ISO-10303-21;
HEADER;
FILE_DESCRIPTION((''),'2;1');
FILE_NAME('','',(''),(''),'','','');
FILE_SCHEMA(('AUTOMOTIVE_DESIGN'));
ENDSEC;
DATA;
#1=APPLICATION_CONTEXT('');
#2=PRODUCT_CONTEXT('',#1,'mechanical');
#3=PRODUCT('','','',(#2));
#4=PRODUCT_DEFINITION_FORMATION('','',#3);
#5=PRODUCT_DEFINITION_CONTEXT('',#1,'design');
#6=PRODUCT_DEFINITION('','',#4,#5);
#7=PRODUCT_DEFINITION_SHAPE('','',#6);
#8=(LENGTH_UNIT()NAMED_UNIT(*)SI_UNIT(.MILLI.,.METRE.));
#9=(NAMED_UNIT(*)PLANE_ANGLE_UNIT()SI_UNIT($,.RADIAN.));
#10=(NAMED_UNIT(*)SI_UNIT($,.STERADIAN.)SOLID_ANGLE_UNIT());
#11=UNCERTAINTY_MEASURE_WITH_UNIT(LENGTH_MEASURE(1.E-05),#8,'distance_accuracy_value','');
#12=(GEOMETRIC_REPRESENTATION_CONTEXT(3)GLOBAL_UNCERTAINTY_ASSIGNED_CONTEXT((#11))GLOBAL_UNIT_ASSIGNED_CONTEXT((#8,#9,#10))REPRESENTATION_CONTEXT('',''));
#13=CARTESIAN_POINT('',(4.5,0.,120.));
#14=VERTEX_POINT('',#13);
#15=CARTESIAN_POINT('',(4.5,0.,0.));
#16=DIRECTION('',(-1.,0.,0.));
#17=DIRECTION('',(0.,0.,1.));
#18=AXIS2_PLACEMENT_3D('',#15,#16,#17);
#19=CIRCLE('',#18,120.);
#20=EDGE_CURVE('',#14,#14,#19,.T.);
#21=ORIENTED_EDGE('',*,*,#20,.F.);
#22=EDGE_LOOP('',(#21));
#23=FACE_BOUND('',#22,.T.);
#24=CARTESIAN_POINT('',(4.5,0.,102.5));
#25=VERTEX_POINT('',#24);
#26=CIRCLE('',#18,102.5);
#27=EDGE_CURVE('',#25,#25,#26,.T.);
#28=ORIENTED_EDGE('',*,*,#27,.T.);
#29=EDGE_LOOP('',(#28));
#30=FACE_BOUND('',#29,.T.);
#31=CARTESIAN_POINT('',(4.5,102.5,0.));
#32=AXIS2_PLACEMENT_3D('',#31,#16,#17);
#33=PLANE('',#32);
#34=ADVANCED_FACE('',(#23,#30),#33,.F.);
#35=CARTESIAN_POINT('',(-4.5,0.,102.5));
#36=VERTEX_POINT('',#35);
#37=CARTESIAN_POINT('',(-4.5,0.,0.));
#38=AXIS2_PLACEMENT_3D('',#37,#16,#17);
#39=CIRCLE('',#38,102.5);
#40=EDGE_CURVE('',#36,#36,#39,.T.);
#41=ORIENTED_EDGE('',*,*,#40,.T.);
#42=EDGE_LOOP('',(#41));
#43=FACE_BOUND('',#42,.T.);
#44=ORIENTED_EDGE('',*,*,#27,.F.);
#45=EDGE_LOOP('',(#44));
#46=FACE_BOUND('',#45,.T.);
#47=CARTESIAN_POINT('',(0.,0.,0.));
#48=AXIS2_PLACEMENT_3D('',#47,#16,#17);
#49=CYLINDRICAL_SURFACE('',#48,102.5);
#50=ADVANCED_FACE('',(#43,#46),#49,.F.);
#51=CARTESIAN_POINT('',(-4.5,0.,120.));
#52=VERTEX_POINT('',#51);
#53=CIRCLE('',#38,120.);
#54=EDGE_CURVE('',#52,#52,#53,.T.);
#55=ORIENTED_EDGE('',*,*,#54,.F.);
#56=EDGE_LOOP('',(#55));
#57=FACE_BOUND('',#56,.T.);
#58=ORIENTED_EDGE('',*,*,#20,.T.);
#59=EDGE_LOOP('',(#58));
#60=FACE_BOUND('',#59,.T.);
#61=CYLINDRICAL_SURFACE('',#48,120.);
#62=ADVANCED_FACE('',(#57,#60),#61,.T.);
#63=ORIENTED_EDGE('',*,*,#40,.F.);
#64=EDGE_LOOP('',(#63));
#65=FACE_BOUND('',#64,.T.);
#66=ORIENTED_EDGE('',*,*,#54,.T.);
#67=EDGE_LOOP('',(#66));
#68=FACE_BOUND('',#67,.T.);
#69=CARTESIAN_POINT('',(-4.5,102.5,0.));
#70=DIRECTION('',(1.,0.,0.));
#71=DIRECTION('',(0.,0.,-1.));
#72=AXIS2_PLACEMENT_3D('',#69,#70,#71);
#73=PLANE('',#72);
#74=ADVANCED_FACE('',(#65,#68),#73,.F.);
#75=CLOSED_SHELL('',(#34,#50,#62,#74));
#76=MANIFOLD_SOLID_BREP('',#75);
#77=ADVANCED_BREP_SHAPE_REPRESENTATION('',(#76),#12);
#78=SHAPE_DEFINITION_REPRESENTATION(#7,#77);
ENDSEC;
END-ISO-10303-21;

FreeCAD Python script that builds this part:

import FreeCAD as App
import Part
import Sketcher
from FreeCAD import Vector
Q = App.Units.Quantity

doc = App.newDocument("Part")
body = doc.addObject("PartDesign::Body", "Body")

sketch1 = body.newObject("Sketcher::SketchObject", "Sketch")
sketch1.AttachmentSupport = (doc.getObject("XY_Plane"), [""])
sketch1.MapMode = "FlatFace"
sketch1.addGeometry([
    Part.LineSegment(Vector(-4.5, 120, 0), Vector(-4.5, 102.5, 0)),
    Part.LineSegment(Vector(-4.5, 102.5, 0), Vector(4.5, 102.5, 0)),
    Part.LineSegment(Vector(4.5, 102.5, 0), Vector(4.5, 120, 0)),
    Part.LineSegment(Vector(4.5, 120, 0), Vector(-4.5, 120, 0)),
], False)
sketch1.addConstraint([
    Sketcher.Constraint("Coincident", 0, 2, 1, 1),
    Sketcher.Constraint("Coincident", 1, 2, 2, 1),
    Sketcher.Constraint("Coincident", 2, 2, 3, 1),
    Sketcher.Constraint("Coincident", 3, 2, 0, 1),
    Sketcher.Constraint("Vertical", 0),
    Sketcher.Constraint("Horizontal", 1),
    Sketcher.Constraint("Vertical", 2),
    Sketcher.Constraint("Horizontal", 3),
    Sketcher.Constraint("DistanceX", 1, 1, 1, 2, Q("9 mm")),
    Sketcher.Constraint("DistanceY", 0, 2, 0, 1, Q("17.5 mm")),
    Sketcher.Constraint("DistanceY", -1, 1, 2, 2, Q("120 mm")),
    Sketcher.Constraint("DistanceX", 0, 2, -1, 1, Q("4.5 mm")),
])
revolution = body.newObject("PartDesign::Revolution", "Revolution")
revolution.Profile = sketch1
revolution.ReferenceAxis = (sketch1, ["H_Axis"])
revolution.Angle = 360

doc.recompute()
